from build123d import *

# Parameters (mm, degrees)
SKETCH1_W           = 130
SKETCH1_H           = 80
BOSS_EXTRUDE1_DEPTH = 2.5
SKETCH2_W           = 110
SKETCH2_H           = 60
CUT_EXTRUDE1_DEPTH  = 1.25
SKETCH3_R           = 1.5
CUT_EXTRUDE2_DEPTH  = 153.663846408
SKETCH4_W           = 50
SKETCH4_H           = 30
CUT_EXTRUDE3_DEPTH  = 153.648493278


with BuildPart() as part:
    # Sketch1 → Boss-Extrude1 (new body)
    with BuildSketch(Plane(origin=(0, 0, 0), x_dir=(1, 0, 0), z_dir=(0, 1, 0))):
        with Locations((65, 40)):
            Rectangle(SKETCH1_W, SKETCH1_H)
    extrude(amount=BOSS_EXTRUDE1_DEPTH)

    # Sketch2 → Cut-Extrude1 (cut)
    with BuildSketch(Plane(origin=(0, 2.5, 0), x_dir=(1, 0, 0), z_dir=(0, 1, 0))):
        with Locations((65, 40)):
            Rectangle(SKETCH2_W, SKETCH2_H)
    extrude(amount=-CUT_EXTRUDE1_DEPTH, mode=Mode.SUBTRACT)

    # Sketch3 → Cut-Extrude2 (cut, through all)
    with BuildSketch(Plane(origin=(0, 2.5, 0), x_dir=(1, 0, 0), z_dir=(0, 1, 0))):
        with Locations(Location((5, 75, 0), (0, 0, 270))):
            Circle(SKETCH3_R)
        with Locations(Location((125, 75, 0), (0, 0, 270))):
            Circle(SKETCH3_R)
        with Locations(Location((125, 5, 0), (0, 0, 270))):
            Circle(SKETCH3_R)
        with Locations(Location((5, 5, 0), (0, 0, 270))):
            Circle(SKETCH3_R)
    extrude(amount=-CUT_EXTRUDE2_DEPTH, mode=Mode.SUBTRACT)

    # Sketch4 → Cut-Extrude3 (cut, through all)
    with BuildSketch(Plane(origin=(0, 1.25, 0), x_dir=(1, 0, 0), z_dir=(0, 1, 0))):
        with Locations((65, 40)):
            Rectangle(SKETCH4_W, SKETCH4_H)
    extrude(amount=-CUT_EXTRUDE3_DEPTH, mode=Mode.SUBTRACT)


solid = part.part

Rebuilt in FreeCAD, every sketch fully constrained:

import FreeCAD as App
import Part
import Sketcher

V = App.Vector
Q = App.Units.Quantity


def add_polygon(sketch, points):
    """Adds a closed chain of lines whose ends are joined by coincident constraints."""
    first, n = sketch.GeometryCount, len(points)
    for a, b in zip(points, points[1:] + points[:1]):
        sketch.addGeometry(Part.LineSegment(App.Vector(*a, 0), App.Vector(*b, 0)), False)
    for i in range(n):
        sketch.addConstraint(Sketcher.Constraint("Coincident", first + i, 2, first + (i + 1) % n, 1))

doc = App.newDocument("Part")
body = doc.addObject("PartDesign::Body", "Body")

# Sketch on XZ plane
sketch1 = body.newObject("Sketcher::SketchObject", "Sketch")
sketch1.AttachmentSupport = (doc.getObject("XZ_Plane"), [""])
sketch1.MapMode = "FlatFace"
add_polygon(sketch1, [(0, -80), (0, 0), (130, 0), (130, -80)])  # lines 0-3
sketch1.addConstraint([
    Sketcher.Constraint("Vertical", 0),
    Sketcher.Constraint("Horizontal", 1),
    Sketcher.Constraint("Vertical", 2),
    Sketcher.Constraint("Horizontal", 3),
    Sketcher.Constraint("Coincident", 0, 2, -1, 1),
    Sketcher.Constraint("DistanceX", 1, 1, 1, 2, Q("130 mm")),
    Sketcher.Constraint("DistanceY", 0, 1, 0, 2, Q("80 mm")),
])
pad1 = body.newObject("PartDesign::Pad", "Pad")
pad1.Profile = sketch1
pad1.Length = 2.5
pad1.Reversed = True

# Sketch on XZ plane
sketch2 = body.newObject("Sketcher::SketchObject", "Sketch001")
sketch2.AttachmentSupport = (doc.getObject("XZ_Plane"), [""])
sketch2.MapMode = "FlatFace"
sketch2.AttachmentOffset = App.Placement(V(0, 0, -2.5), App.Rotation())
add_polygon(sketch2, [(10, -70), (10, -10), (120, -10), (120, -70)])  # lines 0-3
sketch2.addConstraint([
    Sketcher.Constraint("Vertical", 0),
    Sketcher.Constraint("Horizontal", 1),
    Sketcher.Constraint("Vertical", 2),
    Sketcher.Constraint("Horizontal", 3),
    Sketcher.Constraint("DistanceX", 1, 1, 1, 2, Q("110 mm")),
    Sketcher.Constraint("DistanceY", 0, 1, 0, 2, Q("60 mm")),
    Sketcher.Constraint("DistanceX", -1, 1, 0, 2, Q("10 mm")),
    Sketcher.Constraint("DistanceY", 0, 2, -1, 1, Q("10 mm")),
])
pocket1 = body.newObject("PartDesign::Pocket", "Pocket")
pocket1.Profile = sketch2
pocket1.Length = 1.25
pocket1.Reversed = True

# Sketch on XZ plane
sketch3 = body.newObject("Sketcher::SketchObject", "Sketch002")
sketch3.AttachmentSupport = (doc.getObject("XZ_Plane"), [""])
sketch3.MapMode = "FlatFace"
sketch3.AttachmentOffset = App.Placement(V(0, 0, -2.5), App.Rotation())
sketch3.addGeometry([
    Part.Circle(V(5, -75, 0), V(0, 0, 1), 1.5),
    Part.Circle(V(125, -75, 0), V(0, 0, 1), 1.5),
    Part.Circle(V(125, -5, 0), V(0, 0, 1), 1.5),
    Part.Circle(V(5, -5, 0), V(0, 0, 1), 1.5),
], False)
sketch3.addConstraint([
    Sketcher.Constraint("Equal", 0, 1),
    Sketcher.Constraint("Equal", 1, 2),
    Sketcher.Constraint("Equal", 2, 3),
    Sketcher.Constraint("Horizontal", 0, 3, 1, 3),
    Sketcher.Constraint("Horizontal", 2, 3, 3, 3),
    Sketcher.Constraint("Vertical", 1, 3, 2, 3),
    Sketcher.Constraint("Vertical", 0, 3, 3, 3),
    Sketcher.Constraint("Diameter", 0, Q("3 mm")),
    Sketcher.Constraint("DistanceX", -1, 1, 0, 3, Q("5 mm")),
    Sketcher.Constraint("DistanceY", 0, 3, -1, 1, Q("75 mm")),
    Sketcher.Constraint("DistanceX", -1, 1, 1, 3, Q("125 mm")),
    Sketcher.Constraint("DistanceY", 2, 3, -1, 1, Q("5 mm")),
])
pocket2 = body.newObject("PartDesign::Pocket", "Pocket001")
pocket2.Profile = sketch3
pocket2.Type = "ThroughAll"
pocket2.Reversed = True

# Sketch on XZ plane
sketch4 = body.newObject("Sketcher::SketchObject", "Sketch003")
sketch4.AttachmentSupport = (doc.getObject("XZ_Plane"), [""])
sketch4.MapMode = "FlatFace"
sketch4.AttachmentOffset = App.Placement(V(0, 0, -1.25), App.Rotation())
add_polygon(sketch4, [(40, -55), (40, -25), (90, -25), (90, -55)])  # lines 0-3
sketch4.addConstraint([
    Sketcher.Constraint("Vertical", 0),
    Sketcher.Constraint("Horizontal", 1),
    Sketcher.Constraint("Vertical", 2),
    Sketcher.Constraint("Horizontal", 3),
    Sketcher.Constraint("DistanceX", 1, 1, 1, 2, Q("50 mm")),
    Sketcher.Constraint("DistanceY", 0, 1, 0, 2, Q("30 mm")),
    Sketcher.Constraint("DistanceX", -1, 1, 0, 2, Q("40 mm")),
    Sketcher.Constraint("DistanceY", 0, 2, -1, 1, Q("25 mm")),
])
pocket3 = body.newObject("PartDesign::Pocket", "Pocket002")
pocket3.Profile = sketch4
pocket3.Type = "ThroughAll"
pocket3.Reversed = True

doc.recompute()
